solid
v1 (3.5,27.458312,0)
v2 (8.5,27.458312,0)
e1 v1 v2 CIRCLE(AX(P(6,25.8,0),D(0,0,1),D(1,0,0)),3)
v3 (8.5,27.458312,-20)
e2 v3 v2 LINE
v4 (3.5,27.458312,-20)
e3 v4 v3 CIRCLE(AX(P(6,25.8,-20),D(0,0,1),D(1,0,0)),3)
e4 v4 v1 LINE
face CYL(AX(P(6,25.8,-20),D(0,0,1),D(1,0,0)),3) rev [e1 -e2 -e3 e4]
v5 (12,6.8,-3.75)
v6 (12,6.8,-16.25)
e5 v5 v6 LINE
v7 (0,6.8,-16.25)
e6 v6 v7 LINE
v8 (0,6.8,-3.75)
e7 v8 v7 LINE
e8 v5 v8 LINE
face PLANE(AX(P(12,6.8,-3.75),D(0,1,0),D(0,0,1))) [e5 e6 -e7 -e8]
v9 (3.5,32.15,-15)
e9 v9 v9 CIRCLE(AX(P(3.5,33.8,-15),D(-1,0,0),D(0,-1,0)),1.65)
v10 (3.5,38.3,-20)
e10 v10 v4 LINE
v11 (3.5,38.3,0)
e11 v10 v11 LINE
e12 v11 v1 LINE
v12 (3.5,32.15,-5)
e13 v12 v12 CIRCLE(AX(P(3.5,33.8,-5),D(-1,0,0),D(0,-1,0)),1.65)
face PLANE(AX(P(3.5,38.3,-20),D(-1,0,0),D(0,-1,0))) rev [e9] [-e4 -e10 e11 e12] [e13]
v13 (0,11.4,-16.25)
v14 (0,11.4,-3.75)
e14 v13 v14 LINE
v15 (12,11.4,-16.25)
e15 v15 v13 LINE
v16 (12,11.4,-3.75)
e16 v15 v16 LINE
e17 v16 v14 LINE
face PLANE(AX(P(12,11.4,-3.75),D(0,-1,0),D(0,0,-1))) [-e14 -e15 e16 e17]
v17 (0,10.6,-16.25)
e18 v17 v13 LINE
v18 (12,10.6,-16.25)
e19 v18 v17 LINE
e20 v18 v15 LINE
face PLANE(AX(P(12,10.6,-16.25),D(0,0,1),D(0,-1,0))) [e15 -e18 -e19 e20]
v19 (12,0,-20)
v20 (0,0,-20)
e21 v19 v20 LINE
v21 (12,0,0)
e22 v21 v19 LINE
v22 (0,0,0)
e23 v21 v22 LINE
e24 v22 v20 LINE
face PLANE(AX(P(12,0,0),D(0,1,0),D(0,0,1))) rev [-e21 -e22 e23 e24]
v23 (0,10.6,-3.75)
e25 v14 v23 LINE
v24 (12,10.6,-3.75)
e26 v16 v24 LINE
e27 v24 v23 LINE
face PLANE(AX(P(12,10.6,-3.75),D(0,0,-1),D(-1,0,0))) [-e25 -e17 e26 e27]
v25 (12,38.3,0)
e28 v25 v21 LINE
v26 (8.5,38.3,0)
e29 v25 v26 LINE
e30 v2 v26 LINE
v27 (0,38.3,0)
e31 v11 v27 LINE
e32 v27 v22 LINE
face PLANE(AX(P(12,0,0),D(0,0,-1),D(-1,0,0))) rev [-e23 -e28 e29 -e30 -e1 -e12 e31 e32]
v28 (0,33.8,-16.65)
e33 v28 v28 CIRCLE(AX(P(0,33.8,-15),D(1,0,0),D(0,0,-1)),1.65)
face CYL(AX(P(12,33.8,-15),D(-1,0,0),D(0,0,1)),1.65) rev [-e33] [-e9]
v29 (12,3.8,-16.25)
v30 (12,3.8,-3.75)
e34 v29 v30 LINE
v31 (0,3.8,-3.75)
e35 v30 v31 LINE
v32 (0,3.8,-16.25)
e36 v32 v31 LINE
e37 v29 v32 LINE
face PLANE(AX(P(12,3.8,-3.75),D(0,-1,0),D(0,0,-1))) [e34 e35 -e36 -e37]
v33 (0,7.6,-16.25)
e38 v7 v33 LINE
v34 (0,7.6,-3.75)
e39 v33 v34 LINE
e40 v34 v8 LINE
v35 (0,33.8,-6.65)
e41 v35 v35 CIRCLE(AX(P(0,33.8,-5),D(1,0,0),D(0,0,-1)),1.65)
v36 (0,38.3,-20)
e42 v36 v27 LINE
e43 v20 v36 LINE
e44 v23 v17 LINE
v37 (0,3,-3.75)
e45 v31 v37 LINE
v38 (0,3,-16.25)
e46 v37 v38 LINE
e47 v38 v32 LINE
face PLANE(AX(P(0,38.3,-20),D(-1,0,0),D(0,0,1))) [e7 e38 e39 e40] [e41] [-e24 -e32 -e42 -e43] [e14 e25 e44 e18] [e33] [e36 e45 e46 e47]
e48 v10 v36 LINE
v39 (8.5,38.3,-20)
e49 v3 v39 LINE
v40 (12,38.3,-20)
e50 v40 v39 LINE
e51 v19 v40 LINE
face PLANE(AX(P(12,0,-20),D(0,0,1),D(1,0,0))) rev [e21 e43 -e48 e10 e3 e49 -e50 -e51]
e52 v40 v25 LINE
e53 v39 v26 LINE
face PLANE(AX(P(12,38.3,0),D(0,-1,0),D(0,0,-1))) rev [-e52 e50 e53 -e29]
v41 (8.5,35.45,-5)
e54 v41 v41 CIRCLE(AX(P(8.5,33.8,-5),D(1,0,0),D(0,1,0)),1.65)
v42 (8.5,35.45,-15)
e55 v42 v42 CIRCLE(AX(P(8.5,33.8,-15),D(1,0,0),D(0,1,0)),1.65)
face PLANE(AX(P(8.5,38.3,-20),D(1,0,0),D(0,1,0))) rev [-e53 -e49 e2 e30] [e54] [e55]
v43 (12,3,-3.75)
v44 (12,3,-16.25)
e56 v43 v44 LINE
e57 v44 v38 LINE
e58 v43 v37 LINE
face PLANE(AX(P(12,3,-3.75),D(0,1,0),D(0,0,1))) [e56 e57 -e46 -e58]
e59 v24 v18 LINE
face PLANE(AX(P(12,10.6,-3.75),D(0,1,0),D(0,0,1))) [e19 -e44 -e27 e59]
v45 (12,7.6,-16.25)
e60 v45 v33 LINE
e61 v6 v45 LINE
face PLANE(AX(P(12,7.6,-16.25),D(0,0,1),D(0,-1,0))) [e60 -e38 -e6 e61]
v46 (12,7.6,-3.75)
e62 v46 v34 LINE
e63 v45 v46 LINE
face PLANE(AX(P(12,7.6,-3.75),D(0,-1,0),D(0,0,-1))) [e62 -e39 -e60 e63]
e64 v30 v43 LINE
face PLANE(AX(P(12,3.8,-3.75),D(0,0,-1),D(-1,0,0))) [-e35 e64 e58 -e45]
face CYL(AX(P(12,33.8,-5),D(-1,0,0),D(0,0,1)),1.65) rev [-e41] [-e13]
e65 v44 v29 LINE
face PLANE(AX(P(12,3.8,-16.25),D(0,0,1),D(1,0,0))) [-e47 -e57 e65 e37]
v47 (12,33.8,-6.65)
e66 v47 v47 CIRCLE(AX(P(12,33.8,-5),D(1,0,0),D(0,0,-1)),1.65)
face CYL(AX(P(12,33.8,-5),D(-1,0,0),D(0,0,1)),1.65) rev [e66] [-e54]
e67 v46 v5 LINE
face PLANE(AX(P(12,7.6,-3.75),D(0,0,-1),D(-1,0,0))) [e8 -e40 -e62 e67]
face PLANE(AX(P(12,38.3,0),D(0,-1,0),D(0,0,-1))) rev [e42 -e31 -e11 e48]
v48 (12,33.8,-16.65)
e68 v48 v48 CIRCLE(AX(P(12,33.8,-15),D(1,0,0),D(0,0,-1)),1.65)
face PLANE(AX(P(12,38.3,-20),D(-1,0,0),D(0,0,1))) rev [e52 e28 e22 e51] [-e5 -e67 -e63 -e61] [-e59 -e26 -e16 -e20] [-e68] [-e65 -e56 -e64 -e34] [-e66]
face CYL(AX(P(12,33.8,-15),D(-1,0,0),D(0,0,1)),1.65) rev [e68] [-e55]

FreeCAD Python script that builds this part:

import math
import FreeCAD as App
import Part
import Sketcher
from FreeCAD import Vector
Q = App.Units.Quantity


def add_polygon(sketch, points):
    """Adds a closed chain of lines whose ends are joined by coincident constraints."""
    first, n = sketch.GeometryCount, len(points)
    for a, b in zip(points, points[1:] + points[:1]):
        sketch.addGeometry(Part.LineSegment(App.Vector(*a, 0), App.Vector(*b, 0)), False)
    for i in range(n):
        sketch.addConstraint(Sketcher.Constraint("Coincident", first + i, 2, first + (i + 1) % n, 1))

doc = App.newDocument("Part")
body = doc.addObject("PartDesign::Body", "Body")

sketch1 = body.newObject("Sketcher::SketchObject", "Sketch")
sketch1.AttachmentSupport = (doc.getObject("YZ_Plane"), [""])
sketch1.MapMode = "FlatFace"
add_polygon(sketch1, [(38.3, 0), (0, 0), (0, -20), (38.3, -20)])
add_polygon(sketch1, [(3, -16.2), (3, -3.8), (3.8, -3.8), (3.8, -16.2)])
add_polygon(sketch1, [(6.8, -16.2), (6.8, -3.8), (7.6, -3.8), (7.6, -16.2)])
add_polygon(sketch1, [(10.6, -16.2), (10.6, -3.8), (11.4, -3.8), (11.4, -16.2)])
sketch1.addGeometry(Part.Circle(Vector(33.8, -5, 0), Vector(0, 0, 1), 1.6), False)
sketch1.addGeometry(Part.Circle(Vector(33.8, -15, 0), Vector(0, 0, 1), 1.6), False)
sketch1.addConstraint(Sketcher.Constraint("Horizontal", 0))
sketch1.addConstraint(Sketcher.Constraint("Vertical", 1))
sketch1.addConstraint(Sketcher.Constraint("Horizontal", 2))
sketch1.addConstraint(Sketcher.Constraint("Vertical", 3))
sketch1.addConstraint(Sketcher.Constraint("Vertical", 4))
sketch1.addConstraint(Sketcher.Constraint("Horizontal", 5))
sketch1.addConstraint(Sketcher.Constraint("Vertical", 6))
sketch1.addConstraint(Sketcher.Constraint("Horizontal", 7))
sketch1.addConstraint(Sketcher.Constraint("Vertical", 8))
sketch1.addConstraint(Sketcher.Constraint("Horizontal", 9))
sketch1.addConstraint(Sketcher.Constraint("Vertical", 10))
sketch1.addConstraint(Sketcher.Constraint("Horizontal", 11))
sketch1.addConstraint(Sketcher.Constraint("Vertical", 12))
sketch1.addConstraint(Sketcher.Constraint("Horizontal", 13))
sketch1.addConstraint(Sketcher.Constraint("Vertical", 14))
sketch1.addConstraint(Sketcher.Constraint("Horizontal", 15))
sketch1.addConstraint(Sketcher.Constraint("Coincident", 0, 2, -1, 1))
sketch1.addConstraint(Sketcher.Constraint("Equal", 16, 17))
sketch1.addConstraint(Sketcher.Constraint("Horizontal", 5, 2, 8, 2))
sketch1.addConstraint(Sketcher.Constraint("Horizontal", 7, 2, 10, 2))
sketch1.addConstraint(Sketcher.Constraint("Horizontal", 9, 2, 12, 2))
sketch1.addConstraint(Sketcher.Constraint("Horizontal", 11, 2, 14, 2))
sketch1.addConstraint(Sketcher.Constraint("Vertical", 16, 3, 17, 3))
sketch1.addConstraint(Sketcher.Constraint("Equal", 7, 9))
sketch1.addConstraint(Sketcher.Constraint("Equal", 11, 13))
sketch1.addConstraint(Sketcher.Constraint("Diameter", 16, Q("3.3 mm")))
sketch1.addConstraint(Sketcher.Constraint("DistanceY", 1, 2, 1, 1, Q("20 mm")))
sketch1.addConstraint(Sketcher.Constraint("DistanceX", 0, 2, 0, 1, Q("38.3 mm")))
sketch1.addConstraint(Sketcher.Constraint("DistanceX", 5, 1, 5, 2, Q("0.8 mm")))
sketch1.addConstraint(Sketcher.Constraint("DistanceY", 4, 1, 4, 2, Q("12.5 mm")))
sketch1.addConstraint(Sketcher.Constraint("DistanceY", 16, 3, -1, 1, Q("5 mm")))
sketch1.addConstraint(Sketcher.Constraint("DistanceY", 17, 3, -1, 1, Q("15 mm")))
sketch1.addConstraint(Sketcher.Constraint("DistanceX", -1, 1, 4, 2, Q("3 mm")))
sketch1.addConstraint(Sketcher.Constraint("DistanceX", 5, 2, 16, 3, Q("30 mm")))
sketch1.addConstraint(Sketcher.Constraint("DistanceX", 5, 2, 8, 2, Q("3 mm")))
sketch1.addConstraint(Sketcher.Constraint("DistanceX", 9, 2, 12, 2, Q("3 mm")))
sketch1.addConstraint(Sketcher.Constraint("DistanceY", 4, 2, -1, 1, Q("3.75 mm")))
pad1 = body.newObject("PartDesign::Pad", "Pad")
pad1.Profile = sketch1
pad1.Length = 12

sketch2 = body.newObject("Sketcher::SketchObject", "Sketch001")
sketch2.AttachmentSupport = (doc.getObject("XY_Plane"), [""])
sketch2.MapMode = "FlatFace"
sketch2.addGeometry(Part.LineSegment(Vector(8.5, 38.3, 0), Vector(3.5, 38.3, 0)), False)
sketch2.addGeometry(Part.LineSegment(Vector(3.5, 38.3, 0), Vector(3.5, 27.5, 0)), False)
sketch2.addGeometry(Part.ArcOfCircle(Part.Circle(Vector(6, 25.8, 0), Vector(0, 0, 1), 3), math.radians(146), math.radians(394)), False)
sketch2.addGeometry(Part.LineSegment(Vector(8.5, 27.5, 0), Vector(8.5, 38.3, 0)), False)
sketch2.addConstraint(Sketcher.Constraint("Coincident", 0, 2, 1, 1))
sketch2.addConstraint(Sketcher.Constraint("Coincident", 1, 2, 2, 1))
sketch2.addConstraint(Sketcher.Constraint("Coincident", 2, 2, 3, 1))
sketch2.addConstraint(Sketcher.Constraint("Coincident", 3, 2, 0, 1))
sketch2.addConstraint(Sketcher.Constraint("Horizontal", 0))
sketch2.addConstraint(Sketcher.Constraint("Vertical", 1))
sketch2.addConstraint(Sketcher.Constraint("Vertical", 3))
sketch2.addConstraint(Sketcher.Constraint("Horizontal", 1, 2, 2, 2))
sketch2.addConstraint(Sketcher.Constraint("Radius", 2, Q("3 mm")))
sketch2.addConstraint(Sketcher.Constraint("DistanceX", 0, 2, 0, 1, Q("5 mm")))
sketch2.addConstraint(Sketcher.Constraint("DistanceX", -1, 1, 2, 3, Q("6 mm")))
sketch2.addConstraint(Sketcher.Constraint("DistanceY", -1, 1, 2, 3, Q("25.8 mm")))
sketch2.addConstraint(Sketcher.Constraint("DistanceY", -1, 1, 0, 2, Q("38.3 mm")))
pocket1 = body.newObject("PartDesign::Pocket", "Pocket")
pocket1.Profile = sketch2
pocket1.Type = "ThroughAll"

doc.recompute()
